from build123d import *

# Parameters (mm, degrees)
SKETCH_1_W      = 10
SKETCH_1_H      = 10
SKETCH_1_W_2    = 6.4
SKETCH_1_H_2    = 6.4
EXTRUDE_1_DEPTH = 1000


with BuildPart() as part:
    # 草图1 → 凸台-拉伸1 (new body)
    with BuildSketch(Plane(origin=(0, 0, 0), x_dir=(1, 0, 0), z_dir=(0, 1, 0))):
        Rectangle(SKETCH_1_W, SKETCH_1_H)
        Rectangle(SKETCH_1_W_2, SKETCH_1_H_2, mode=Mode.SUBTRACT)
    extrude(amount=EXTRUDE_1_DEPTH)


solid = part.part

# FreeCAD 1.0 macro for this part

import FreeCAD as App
import Part
import Sketcher

doc = App.newDocument("Part")
params = doc.addObject("Spreadsheet::Sheet", "Params")
for row, (alias, value) in enumerate([
    ("sketch1_width", "10 mm"),
    ("sketch1_width2", "6.4 mm"),
    ("pad1_length", "1000 mm"),
], start=1):
    params.set(f"A{row}", alias)
    params.set(f"B{row}", "=" + value)
    params.setAlias(f"B{row}", alias)

body = doc.addObject("PartDesign::Body", "Body")

# Sketch on XZ plane
sketch1 = body.newObject("Sketcher::SketchObject", "Sketch")
sketch1.AttachmentSupport = (doc.getObject("XZ_Plane"), [""])
sketch1.MapMode = "FlatFace"
sketch1.addGeometry(Part.LineSegment(App.Vector(-5, -5, 0), App.Vector(-5, 5, 0)), False)
sketch1.addGeometry(Part.LineSegment(App.Vector(-5, 5, 0), App.Vector(5, 5, 0)), False)
sketch1.addGeometry(Part.LineSegment(App.Vector(5, 5, 0), App.Vector(5, -5, 0)), False)
sketch1.addGeometry(Part.LineSegment(App.Vector(5, -5, 0), App.Vector(-5, -5, 0)), False)
sketch1.addGeometry(Part.LineSegment(App.Vector(3, 3, 0), App.Vector(-3, 3, 0)), False)
sketch1.addGeometry(Part.LineSegment(App.Vector(-3, 3, 0), App.Vector(-3, -3, 0)), False)
sketch1.addGeometry(Part.LineSegment(App.Vector(-3, -3, 0), App.Vector(3, -3, 0)), False)
sketch1.addGeometry(Part.LineSegment(App.Vector(3, -3, 0), App.Vector(3, 3, 0)), False)
sketch1.addConstraint(Sketcher.Constraint("Coincident", 0, 2, 1, 1))
sketch1.addConstraint(Sketcher.Constraint("Coincident", 1, 2, 2, 1))
sketch1.addConstraint(Sketcher.Constraint("Coincident", 2, 2, 3, 1))
sketch1.addConstraint(Sketcher.Constraint("Coincident", 3, 2, 0, 1))
sketch1.addConstraint(Sketcher.Constraint("Coincident", 4, 2, 5, 1))
sketch1.addConstraint(Sketcher.Constraint("Coincident", 5, 2, 6, 1))
sketch1.addConstraint(Sketcher.Constraint("Coincident", 6, 2, 7, 1))
sketch1.addConstraint(Sketcher.Constraint("Coincident", 7, 2, 4, 1))
sketch1.addConstraint(Sketcher.Constraint("Vertical", 0))
sketch1.addConstraint(Sketcher.Constraint("Horizontal", 1))
sketch1.addConstraint(Sketcher.Constraint("Vertical", 2))
sketch1.addConstraint(Sketcher.Constraint("Horizontal", 3))
sketch1.addConstraint(Sketcher.Constraint("Horizontal", 4))
sketch1.addConstraint(Sketcher.Constraint("Vertical", 5))
sketch1.addConstraint(Sketcher.Constraint("Horizontal", 6))
sketch1.addConstraint(Sketcher.Constraint("Vertical", 7))
sketch1.addConstraint(Sketcher.Constraint("Symmetric", 0, 2, 2, 2, -1, 1))
sketch1.addConstraint(Sketcher.Constraint("Symmetric", 4, 2, 6, 2, -1, 1))
sketch1.addConstraint(Sketcher.Constraint("Equal", 3, 0))
sketch1.addConstraint(Sketcher.Constraint("Equal", 6, 5))
sketch1.addConstraint(Sketcher.Constraint("DistanceX", 1, 1, 1, 2, 10.0))
sketch1.addConstraint(Sketcher.Constraint("DistanceX", 4, 2, 4, 1, 6.4))
sketch1.setExpression("Constraints[20]", "Params.sketch1_width")
sketch1.setExpression("Constraints[21]", "Params.sketch1_width2")
pad1 = body.newObject("PartDesign::Pad", "Pad")
pad1.Profile = sketch1
pad1.setExpression("Length", "Params.pad1_length")
pad1.Reversed = True

doc.recompute()
